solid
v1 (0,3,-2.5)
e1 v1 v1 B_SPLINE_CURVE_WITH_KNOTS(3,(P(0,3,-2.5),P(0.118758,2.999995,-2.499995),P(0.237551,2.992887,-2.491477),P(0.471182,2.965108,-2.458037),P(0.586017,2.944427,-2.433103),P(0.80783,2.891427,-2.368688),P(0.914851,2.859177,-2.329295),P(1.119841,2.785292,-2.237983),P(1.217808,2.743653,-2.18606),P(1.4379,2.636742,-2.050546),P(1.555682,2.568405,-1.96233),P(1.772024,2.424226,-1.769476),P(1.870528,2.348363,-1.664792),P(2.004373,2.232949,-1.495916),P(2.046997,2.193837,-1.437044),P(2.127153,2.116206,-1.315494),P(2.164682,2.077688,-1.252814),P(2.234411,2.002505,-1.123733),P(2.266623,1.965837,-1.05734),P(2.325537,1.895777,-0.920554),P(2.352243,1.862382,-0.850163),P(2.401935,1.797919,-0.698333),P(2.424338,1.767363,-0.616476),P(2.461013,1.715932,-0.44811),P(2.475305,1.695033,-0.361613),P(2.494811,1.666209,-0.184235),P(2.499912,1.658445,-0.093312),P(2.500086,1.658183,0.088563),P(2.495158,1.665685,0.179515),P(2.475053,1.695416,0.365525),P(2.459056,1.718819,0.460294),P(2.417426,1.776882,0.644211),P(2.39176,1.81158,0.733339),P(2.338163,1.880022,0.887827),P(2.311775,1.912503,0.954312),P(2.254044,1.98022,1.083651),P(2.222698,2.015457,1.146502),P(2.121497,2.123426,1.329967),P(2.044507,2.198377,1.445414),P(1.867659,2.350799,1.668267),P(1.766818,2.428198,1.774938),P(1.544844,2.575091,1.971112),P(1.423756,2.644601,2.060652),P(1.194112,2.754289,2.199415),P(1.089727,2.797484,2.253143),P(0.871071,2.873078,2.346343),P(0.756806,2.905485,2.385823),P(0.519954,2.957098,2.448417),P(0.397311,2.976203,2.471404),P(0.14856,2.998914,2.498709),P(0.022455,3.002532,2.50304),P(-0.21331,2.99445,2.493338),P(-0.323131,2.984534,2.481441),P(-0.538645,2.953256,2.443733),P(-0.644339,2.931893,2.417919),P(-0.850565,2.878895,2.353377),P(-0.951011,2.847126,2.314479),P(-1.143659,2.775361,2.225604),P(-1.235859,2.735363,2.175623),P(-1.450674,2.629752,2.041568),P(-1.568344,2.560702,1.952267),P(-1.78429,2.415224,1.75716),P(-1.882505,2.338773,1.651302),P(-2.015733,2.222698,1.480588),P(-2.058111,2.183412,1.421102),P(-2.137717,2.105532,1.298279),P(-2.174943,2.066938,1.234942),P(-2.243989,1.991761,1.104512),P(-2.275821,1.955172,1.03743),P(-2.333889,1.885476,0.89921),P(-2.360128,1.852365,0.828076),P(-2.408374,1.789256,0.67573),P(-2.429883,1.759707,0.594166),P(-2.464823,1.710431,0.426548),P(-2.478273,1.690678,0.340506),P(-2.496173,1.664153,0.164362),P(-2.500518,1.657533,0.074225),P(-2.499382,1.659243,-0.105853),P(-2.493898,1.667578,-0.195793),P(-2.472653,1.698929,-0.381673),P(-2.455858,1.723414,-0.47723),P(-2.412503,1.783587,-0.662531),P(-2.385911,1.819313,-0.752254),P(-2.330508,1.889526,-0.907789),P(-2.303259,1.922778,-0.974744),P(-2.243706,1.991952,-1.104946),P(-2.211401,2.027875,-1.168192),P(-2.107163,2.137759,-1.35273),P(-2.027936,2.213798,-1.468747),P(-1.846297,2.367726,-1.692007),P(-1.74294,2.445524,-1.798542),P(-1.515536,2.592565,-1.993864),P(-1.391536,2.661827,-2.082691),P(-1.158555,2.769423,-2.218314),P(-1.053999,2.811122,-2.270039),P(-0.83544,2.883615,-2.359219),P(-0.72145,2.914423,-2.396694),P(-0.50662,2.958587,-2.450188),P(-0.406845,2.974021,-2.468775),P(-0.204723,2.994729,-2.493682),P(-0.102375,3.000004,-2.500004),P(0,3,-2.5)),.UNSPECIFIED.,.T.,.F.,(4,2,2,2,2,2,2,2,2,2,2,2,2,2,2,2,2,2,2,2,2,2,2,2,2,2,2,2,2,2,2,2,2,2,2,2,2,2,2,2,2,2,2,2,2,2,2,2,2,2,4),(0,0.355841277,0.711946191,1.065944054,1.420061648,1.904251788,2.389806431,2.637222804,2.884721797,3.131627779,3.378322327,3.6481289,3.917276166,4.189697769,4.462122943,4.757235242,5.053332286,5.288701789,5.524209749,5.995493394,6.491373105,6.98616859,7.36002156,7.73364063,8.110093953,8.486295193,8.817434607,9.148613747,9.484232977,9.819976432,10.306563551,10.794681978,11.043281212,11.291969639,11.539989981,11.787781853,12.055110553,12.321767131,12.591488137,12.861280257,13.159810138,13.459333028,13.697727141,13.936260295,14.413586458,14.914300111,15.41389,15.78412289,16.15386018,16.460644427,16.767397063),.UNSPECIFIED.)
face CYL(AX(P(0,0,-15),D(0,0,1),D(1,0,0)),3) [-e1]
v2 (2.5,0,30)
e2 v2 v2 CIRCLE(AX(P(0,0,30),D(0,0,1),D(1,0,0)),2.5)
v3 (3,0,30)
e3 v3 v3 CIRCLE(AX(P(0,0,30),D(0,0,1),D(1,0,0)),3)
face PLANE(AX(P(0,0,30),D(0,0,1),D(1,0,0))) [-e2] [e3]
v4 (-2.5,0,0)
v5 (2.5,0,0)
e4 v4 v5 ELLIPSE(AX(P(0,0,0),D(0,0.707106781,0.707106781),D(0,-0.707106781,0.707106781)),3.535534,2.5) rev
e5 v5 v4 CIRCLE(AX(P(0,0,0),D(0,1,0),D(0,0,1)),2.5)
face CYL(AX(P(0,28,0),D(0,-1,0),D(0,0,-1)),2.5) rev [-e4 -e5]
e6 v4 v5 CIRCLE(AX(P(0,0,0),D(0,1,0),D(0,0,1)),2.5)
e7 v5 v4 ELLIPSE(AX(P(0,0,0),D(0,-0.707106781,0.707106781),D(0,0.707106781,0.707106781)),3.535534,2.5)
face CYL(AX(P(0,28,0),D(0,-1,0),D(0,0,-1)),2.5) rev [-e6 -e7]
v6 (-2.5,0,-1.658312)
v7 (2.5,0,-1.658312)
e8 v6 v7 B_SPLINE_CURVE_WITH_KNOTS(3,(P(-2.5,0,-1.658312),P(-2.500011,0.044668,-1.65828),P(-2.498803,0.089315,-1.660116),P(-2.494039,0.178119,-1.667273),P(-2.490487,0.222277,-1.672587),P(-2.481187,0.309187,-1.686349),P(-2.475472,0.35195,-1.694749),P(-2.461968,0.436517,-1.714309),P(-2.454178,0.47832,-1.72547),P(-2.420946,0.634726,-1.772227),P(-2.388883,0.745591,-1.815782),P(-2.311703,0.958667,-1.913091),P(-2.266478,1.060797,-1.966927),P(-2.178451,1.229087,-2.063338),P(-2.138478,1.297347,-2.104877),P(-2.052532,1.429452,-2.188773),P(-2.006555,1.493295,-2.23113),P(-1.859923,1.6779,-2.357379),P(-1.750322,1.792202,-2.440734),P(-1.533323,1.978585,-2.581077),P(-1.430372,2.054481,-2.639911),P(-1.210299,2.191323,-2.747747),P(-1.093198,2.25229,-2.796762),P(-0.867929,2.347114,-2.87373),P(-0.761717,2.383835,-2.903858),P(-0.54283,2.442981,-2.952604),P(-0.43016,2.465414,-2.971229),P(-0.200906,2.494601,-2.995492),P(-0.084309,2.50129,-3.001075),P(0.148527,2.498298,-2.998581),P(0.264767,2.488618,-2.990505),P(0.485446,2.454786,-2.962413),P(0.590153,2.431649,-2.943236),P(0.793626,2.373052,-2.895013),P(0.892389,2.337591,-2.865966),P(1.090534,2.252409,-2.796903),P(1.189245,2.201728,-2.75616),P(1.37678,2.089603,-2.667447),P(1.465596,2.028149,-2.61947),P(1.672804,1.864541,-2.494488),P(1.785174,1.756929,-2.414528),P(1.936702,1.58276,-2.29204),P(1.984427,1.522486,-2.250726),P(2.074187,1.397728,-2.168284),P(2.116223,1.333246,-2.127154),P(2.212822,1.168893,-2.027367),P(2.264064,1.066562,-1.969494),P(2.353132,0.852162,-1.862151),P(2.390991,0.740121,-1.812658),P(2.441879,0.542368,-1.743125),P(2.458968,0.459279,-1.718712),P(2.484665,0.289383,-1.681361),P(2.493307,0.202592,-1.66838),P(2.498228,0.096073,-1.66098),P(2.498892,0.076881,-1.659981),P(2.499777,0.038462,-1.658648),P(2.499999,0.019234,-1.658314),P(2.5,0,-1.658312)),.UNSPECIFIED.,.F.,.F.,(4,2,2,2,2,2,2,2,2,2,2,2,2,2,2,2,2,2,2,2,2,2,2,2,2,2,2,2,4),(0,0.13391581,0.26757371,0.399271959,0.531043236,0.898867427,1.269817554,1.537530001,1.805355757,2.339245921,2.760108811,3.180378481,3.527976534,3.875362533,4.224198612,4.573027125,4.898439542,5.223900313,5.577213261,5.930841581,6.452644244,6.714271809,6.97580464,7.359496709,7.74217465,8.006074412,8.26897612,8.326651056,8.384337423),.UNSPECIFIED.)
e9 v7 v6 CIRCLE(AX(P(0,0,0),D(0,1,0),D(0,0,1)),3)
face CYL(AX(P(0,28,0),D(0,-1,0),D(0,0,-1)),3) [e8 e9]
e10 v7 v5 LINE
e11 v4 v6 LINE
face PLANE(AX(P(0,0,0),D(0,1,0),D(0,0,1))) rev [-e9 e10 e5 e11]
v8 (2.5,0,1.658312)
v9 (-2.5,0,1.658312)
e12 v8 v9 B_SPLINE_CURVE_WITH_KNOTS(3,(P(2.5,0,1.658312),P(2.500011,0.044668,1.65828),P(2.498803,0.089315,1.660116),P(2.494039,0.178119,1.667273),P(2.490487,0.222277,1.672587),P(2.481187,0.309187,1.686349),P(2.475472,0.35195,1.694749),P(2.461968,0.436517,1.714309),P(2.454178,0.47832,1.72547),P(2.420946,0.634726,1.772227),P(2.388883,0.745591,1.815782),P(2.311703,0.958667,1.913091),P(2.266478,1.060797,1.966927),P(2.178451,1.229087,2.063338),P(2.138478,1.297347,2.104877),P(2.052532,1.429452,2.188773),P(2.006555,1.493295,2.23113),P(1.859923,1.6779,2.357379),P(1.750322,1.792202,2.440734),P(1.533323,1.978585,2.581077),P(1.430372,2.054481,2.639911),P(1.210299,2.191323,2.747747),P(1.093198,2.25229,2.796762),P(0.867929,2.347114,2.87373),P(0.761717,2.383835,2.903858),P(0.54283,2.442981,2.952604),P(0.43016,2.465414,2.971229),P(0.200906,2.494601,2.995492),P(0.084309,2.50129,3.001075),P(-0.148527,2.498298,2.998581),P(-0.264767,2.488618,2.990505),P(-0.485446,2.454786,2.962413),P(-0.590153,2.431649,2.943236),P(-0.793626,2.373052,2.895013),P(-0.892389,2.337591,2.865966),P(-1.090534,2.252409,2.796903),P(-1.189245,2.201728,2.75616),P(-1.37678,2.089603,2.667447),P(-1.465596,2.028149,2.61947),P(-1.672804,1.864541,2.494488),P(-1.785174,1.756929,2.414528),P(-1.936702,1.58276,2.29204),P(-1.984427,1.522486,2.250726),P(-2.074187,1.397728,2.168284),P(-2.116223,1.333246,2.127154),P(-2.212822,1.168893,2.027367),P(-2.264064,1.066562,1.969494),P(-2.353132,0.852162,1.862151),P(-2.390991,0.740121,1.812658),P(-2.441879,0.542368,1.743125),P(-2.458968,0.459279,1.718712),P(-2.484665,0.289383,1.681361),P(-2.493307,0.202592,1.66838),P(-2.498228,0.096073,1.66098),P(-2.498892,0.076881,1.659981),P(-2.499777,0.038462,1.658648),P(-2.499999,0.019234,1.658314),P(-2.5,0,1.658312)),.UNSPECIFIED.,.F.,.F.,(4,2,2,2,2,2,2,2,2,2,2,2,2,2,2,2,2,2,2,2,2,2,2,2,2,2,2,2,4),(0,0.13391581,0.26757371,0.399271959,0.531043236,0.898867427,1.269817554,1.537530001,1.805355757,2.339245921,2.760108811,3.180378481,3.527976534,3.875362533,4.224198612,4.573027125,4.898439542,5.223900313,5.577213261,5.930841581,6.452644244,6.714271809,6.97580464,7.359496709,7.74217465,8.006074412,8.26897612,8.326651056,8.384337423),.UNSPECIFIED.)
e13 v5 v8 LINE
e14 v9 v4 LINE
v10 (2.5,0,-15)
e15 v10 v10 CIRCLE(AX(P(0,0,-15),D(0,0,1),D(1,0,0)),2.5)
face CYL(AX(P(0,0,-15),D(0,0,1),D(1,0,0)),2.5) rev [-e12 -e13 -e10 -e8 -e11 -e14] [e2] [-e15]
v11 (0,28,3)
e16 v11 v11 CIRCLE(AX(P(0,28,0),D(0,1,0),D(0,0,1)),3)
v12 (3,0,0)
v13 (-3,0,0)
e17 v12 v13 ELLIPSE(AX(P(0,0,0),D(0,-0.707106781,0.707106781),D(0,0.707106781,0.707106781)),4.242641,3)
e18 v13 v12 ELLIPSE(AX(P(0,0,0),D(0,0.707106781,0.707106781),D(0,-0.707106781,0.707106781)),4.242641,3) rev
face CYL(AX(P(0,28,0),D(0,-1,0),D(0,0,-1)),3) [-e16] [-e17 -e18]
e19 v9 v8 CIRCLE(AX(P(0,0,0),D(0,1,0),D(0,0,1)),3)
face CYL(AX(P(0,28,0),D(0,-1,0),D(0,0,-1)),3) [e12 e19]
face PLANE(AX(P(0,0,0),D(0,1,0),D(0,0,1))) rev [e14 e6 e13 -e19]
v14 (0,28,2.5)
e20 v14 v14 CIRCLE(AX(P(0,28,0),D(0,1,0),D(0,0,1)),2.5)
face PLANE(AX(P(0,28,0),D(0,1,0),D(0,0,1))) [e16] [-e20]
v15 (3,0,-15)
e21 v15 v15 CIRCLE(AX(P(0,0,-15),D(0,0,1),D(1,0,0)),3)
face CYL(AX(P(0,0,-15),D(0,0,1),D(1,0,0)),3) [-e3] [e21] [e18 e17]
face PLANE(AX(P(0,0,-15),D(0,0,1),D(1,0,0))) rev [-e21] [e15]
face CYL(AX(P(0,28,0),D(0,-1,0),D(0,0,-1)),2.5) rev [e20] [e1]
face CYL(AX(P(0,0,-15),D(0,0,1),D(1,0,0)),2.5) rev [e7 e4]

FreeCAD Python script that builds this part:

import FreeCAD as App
import Part
import Sketcher

V = App.Vector
Q = App.Units.Quantity

doc = App.newDocument("Part")
body = doc.addObject("PartDesign::Body", "Body")

sketch1 = body.newObject("Sketcher::SketchObject", "Sketch")
sketch1.AttachmentSupport = (doc.getObject("XY_Plane"), [""])
sketch1.MapMode = "FlatFace"
sketch1.addGeometry(Part.Circle(V(0, 0, 0), V(0, 0, 1), 3), False)
sketch1.addGeometry(Part.Circle(V(0, 0, 0), V(0, 0, 1), 2.5), False)
sketch1.addConstraint(Sketcher.Constraint("Coincident", 0, 3, -1, 1))
sketch1.addConstraint(Sketcher.Constraint("Coincident", 1, 3, -1, 1))
sketch1.addConstraint(Sketcher.Constraint("Diameter", 0, Q("6 mm")))
sketch1.addConstraint(Sketcher.Constraint("Diameter", 1, Q("5 mm")))
pad1 = body.newObject("PartDesign::Pad", "Pad")
pad1.Profile = sketch1
pad1.Type = "TwoLengths"
pad1.Length = 30
pad1.Length2 = 15

sketch2 = body.newObject("Sketcher::SketchObject", "Sketch001")
sketch2.AttachmentSupport = (doc.getObject("XZ_Plane"), [""])
sketch2.MapMode = "FlatFace"
sketch2.addGeometry(Part.Circle(V(0, 0, 0), V(0, 0, 1), 3), False)
sketch2.addGeometry(Part.Circle(V(0, 0, 0), V(0, 0, 1), 2.5), False)
sketch2.addConstraint(Sketcher.Constraint("Coincident", 0, 3, -1, 1))
sketch2.addConstraint(Sketcher.Constraint("Coincident", 1, 3, -1, 1))
sketch2.addConstraint(Sketcher.Constraint("Diameter", 0, Q("6 mm")))
sketch2.addConstraint(Sketcher.Constraint("Diameter", 1, Q("5 mm")))
pad2 = body.newObject("PartDesign::Pad", "Pad001")
pad2.Profile = sketch2
pad2.Length = 28
pad2.Reversed = True

doc.recompute()
